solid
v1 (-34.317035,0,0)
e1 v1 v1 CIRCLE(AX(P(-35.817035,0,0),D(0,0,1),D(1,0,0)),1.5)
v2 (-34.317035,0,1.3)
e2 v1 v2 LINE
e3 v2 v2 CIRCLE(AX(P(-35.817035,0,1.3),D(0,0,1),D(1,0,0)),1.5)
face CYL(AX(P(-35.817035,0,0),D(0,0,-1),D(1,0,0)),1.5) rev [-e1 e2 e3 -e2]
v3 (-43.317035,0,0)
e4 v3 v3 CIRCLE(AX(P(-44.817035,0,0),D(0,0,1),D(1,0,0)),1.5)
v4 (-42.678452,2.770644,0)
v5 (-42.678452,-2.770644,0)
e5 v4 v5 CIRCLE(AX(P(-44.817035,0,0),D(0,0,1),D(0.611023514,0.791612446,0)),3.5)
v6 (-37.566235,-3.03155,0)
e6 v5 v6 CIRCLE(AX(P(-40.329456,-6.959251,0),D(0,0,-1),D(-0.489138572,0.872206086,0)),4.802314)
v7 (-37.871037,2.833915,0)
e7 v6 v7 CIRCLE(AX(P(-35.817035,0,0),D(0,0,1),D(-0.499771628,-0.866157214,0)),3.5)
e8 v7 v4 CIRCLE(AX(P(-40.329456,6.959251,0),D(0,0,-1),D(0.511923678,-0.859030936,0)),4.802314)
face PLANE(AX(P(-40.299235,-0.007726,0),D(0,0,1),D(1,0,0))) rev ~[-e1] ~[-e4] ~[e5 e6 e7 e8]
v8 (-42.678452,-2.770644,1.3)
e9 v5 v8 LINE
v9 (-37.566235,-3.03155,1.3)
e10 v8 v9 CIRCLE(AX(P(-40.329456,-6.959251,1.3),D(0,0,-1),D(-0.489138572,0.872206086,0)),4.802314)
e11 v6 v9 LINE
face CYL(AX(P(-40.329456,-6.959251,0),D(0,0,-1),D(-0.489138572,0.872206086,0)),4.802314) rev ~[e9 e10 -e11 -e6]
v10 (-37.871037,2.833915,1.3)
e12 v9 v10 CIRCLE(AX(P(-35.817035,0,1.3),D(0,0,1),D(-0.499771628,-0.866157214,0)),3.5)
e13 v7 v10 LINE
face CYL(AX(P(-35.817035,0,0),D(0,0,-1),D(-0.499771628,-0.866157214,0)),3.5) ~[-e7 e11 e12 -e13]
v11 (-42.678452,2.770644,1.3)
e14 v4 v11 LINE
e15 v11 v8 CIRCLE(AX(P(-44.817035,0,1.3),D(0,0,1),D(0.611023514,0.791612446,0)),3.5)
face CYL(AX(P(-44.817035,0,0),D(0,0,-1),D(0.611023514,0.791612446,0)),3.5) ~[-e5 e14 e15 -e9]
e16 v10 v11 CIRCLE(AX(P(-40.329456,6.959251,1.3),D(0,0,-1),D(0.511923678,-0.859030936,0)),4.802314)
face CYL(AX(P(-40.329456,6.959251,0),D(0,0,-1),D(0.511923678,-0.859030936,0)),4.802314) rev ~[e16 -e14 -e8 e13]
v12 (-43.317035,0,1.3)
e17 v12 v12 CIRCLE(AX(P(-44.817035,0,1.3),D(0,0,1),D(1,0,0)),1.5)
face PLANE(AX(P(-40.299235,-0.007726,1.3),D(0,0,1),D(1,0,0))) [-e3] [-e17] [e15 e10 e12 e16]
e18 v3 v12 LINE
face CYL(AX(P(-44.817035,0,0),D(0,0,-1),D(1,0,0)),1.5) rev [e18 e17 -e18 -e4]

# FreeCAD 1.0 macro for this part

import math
import FreeCAD as App
import Part
import Sketcher

V = App.Vector

doc = App.newDocument("Part")
body = doc.addObject("PartDesign::Body", "Body")

# Sketch on XY plane
sketch1 = doc.addObject("Sketcher::SketchObject", "Sketch")
body.addObject(sketch1)
sketch1.AttachmentSupport = (doc.XY_Plane, [""])
sketch1.MapMode = "FlatFace"
sketch1.addGeometry(Part.ArcOfCircle(Part.Circle(V(-44.8, 0, 0), V(0, 0, 1), 3.5), math.radians(52), math.radians(308)), False)
sketch1.addGeometry(Part.ArcOfCircle(Part.Circle(V(-40.3, -7, 0), V(0, 0, 1), 4.8), math.radians(55), math.radians(119)), False)
sketch1.addGeometry(Part.ArcOfCircle(Part.Circle(V(-35.8, 0, 0), V(0, 0, 1), 3.5), math.radians(-120), math.radians(126)), False)
sketch1.addGeometry(Part.ArcOfCircle(Part.Circle(V(-40.3, 7, 0), V(0, 0, 1), 4.8), math.radians(-119), math.radians(-59)), False)
sketch1.addGeometry(Part.Circle(V(-44.8, 0, 0), V(0, 0, 1), 1.5), False)
sketch1.addGeometry(Part.Circle(V(-35.8, 0, 0), V(0, 0, 1), 1.5), False)
sketch1.addConstraint(Sketcher.Constraint("Coincident", 0, 2, 1, 2))
sketch1.addConstraint(Sketcher.Constraint("Coincident", 1, 1, 2, 1))
sketch1.addConstraint(Sketcher.Constraint("Coincident", 2, 2, 3, 2))
sketch1.addConstraint(Sketcher.Constraint("Coincident", 3, 1, 0, 1))
sketch1.addConstraint(Sketcher.Constraint("Coincident", 4, 3, 0, 3))
sketch1.addConstraint(Sketcher.Constraint("Coincident", 5, 3, 2, 3))
sketch1.addConstraint(Sketcher.Constraint("Equal", 0, 2))
sketch1.addConstraint(Sketcher.Constraint("Equal", 1, 3))
sketch1.addConstraint(Sketcher.Constraint("Equal", 4, 5))
sketch1.addConstraint(Sketcher.Constraint("Symmetric", 1, 3, 3, 3, -1))
sketch1.addConstraint(Sketcher.Constraint("PointOnObject", 0, 3, -1))
sketch1.addConstraint(Sketcher.Constraint("PointOnObject", 2, 3, -1))
sketch1.addConstraint(Sketcher.Constraint("Diameter", 4, 3.0))
sketch1.addConstraint(Sketcher.Constraint("Radius", 0, 3.5))
sketch1.addConstraint(Sketcher.Constraint("DistanceX", 0, 3, 2, 3, 9.0))
sketch1.addConstraint(Sketcher.Constraint("Radius", 1, 4.802314))
sketch1.addConstraint(Sketcher.Constraint("DistanceY", 1, 3, 3, 3, 13.918502))
sketch1.addConstraint(Sketcher.Constraint("DistanceX", 1, 1, 2, 3, 1.749201))
sketch1.addConstraint(Sketcher.Constraint("DistanceX", 0, 3, -1, 1, 44.817035))
pad1 = doc.addObject("PartDesign::Pad", "Pad")
body.addObject(pad1)
pad1.Profile = sketch1
pad1.Length = 1.3

doc.recompute()
